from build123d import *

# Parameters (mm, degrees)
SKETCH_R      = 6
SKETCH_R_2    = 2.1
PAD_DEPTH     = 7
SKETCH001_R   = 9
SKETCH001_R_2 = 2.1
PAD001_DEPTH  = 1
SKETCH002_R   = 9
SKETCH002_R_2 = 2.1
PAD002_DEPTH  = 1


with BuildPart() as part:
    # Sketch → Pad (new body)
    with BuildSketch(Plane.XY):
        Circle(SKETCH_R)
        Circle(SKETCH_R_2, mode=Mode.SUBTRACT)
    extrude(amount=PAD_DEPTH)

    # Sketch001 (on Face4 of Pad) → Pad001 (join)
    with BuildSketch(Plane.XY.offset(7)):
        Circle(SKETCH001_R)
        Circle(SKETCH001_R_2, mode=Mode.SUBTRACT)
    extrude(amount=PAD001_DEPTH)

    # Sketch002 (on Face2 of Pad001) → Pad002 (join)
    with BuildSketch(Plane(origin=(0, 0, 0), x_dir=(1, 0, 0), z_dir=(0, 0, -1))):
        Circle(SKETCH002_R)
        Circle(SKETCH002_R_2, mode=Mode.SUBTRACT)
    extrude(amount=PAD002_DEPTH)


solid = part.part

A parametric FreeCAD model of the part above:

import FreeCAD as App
import Part
import Sketcher

V = App.Vector

doc = App.newDocument("Part")
body = doc.addObject("PartDesign::Body", "Body")

sketch1 = body.newObject("Sketcher::SketchObject", "Sketch")
sketch1.AttachmentSupport = (doc.getObject("XY_Plane"), [""])
sketch1.MapMode = "FlatFace"
sketch1.addGeometry([
    Part.Circle(V(0, 0, 0), V(0, 0, 1), 6),
    Part.Circle(V(0, 0, 0), V(0, 0, 1), 2.1),
], False)
sketch1.addConstraint([
    Sketcher.Constraint("Coincident", 0, 3, -1, 1),
    Sketcher.Constraint("Coincident", 1, 3, -1, 1),
    Sketcher.Constraint("Diameter", 0, 12.0),
    Sketcher.Constraint("Diameter", 1, 4.2),
])
pad1 = body.newObject("PartDesign::Pad", "Pad")
pad1.Profile = sketch1
pad1.Length = 7

sketch2 = body.newObject("Sketcher::SketchObject", "Sketch001")
sketch2.AttachmentSupport = (doc.getObject("XY_Plane"), [""])
sketch2.MapMode = "FlatFace"
sketch2.AttachmentOffset = App.Placement(V(0, 0, 7), App.Rotation())
sketch2.addGeometry([
    Part.Circle(V(0, 0, 0), V(0, 0, 1), 9),
    Part.Circle(V(0, 0, 0), V(0, 0, 1), 2.1),
], False)
sketch2.addConstraint([
    Sketcher.Constraint("Coincident", 0, 3, -1, 1),
    Sketcher.Constraint("Coincident", 1, 3, -1, 1),
    Sketcher.Constraint("Diameter", 0, 18.0),
    Sketcher.Constraint("Diameter", 1, 4.2),
])
pad2 = body.newObject("PartDesign::Pad", "Pad001")
pad2.Profile = sketch2
pad2.Length = 1

sketch3 = body.newObject("Sketcher::SketchObject", "Sketch002")
sketch3.AttachmentSupport = (doc.getObject("XY_Plane"), [""])
sketch3.MapMode = "FlatFace"
sketch3.addGeometry([
    Part.Circle(V(0, 0, 0), V(0, 0, 1), 9),
    Part.Circle(V(0, 0, 0), V(0, 0, 1), 2.1),
], False)
sketch3.addConstraint([
    Sketcher.Constraint("Coincident", 0, 3, -1, 1),
    Sketcher.Constraint("Coincident", 1, 3, -1, 1),
    Sketcher.Constraint("Diameter", 0, 18.0),
    Sketcher.Constraint("Diameter", 1, 4.2),
])
pad3 = body.newObject("PartDesign::Pad", "Pad002")
pad3.Profile = sketch3
pad3.Length = 1
pad3.Reversed = True

doc.recompute()
